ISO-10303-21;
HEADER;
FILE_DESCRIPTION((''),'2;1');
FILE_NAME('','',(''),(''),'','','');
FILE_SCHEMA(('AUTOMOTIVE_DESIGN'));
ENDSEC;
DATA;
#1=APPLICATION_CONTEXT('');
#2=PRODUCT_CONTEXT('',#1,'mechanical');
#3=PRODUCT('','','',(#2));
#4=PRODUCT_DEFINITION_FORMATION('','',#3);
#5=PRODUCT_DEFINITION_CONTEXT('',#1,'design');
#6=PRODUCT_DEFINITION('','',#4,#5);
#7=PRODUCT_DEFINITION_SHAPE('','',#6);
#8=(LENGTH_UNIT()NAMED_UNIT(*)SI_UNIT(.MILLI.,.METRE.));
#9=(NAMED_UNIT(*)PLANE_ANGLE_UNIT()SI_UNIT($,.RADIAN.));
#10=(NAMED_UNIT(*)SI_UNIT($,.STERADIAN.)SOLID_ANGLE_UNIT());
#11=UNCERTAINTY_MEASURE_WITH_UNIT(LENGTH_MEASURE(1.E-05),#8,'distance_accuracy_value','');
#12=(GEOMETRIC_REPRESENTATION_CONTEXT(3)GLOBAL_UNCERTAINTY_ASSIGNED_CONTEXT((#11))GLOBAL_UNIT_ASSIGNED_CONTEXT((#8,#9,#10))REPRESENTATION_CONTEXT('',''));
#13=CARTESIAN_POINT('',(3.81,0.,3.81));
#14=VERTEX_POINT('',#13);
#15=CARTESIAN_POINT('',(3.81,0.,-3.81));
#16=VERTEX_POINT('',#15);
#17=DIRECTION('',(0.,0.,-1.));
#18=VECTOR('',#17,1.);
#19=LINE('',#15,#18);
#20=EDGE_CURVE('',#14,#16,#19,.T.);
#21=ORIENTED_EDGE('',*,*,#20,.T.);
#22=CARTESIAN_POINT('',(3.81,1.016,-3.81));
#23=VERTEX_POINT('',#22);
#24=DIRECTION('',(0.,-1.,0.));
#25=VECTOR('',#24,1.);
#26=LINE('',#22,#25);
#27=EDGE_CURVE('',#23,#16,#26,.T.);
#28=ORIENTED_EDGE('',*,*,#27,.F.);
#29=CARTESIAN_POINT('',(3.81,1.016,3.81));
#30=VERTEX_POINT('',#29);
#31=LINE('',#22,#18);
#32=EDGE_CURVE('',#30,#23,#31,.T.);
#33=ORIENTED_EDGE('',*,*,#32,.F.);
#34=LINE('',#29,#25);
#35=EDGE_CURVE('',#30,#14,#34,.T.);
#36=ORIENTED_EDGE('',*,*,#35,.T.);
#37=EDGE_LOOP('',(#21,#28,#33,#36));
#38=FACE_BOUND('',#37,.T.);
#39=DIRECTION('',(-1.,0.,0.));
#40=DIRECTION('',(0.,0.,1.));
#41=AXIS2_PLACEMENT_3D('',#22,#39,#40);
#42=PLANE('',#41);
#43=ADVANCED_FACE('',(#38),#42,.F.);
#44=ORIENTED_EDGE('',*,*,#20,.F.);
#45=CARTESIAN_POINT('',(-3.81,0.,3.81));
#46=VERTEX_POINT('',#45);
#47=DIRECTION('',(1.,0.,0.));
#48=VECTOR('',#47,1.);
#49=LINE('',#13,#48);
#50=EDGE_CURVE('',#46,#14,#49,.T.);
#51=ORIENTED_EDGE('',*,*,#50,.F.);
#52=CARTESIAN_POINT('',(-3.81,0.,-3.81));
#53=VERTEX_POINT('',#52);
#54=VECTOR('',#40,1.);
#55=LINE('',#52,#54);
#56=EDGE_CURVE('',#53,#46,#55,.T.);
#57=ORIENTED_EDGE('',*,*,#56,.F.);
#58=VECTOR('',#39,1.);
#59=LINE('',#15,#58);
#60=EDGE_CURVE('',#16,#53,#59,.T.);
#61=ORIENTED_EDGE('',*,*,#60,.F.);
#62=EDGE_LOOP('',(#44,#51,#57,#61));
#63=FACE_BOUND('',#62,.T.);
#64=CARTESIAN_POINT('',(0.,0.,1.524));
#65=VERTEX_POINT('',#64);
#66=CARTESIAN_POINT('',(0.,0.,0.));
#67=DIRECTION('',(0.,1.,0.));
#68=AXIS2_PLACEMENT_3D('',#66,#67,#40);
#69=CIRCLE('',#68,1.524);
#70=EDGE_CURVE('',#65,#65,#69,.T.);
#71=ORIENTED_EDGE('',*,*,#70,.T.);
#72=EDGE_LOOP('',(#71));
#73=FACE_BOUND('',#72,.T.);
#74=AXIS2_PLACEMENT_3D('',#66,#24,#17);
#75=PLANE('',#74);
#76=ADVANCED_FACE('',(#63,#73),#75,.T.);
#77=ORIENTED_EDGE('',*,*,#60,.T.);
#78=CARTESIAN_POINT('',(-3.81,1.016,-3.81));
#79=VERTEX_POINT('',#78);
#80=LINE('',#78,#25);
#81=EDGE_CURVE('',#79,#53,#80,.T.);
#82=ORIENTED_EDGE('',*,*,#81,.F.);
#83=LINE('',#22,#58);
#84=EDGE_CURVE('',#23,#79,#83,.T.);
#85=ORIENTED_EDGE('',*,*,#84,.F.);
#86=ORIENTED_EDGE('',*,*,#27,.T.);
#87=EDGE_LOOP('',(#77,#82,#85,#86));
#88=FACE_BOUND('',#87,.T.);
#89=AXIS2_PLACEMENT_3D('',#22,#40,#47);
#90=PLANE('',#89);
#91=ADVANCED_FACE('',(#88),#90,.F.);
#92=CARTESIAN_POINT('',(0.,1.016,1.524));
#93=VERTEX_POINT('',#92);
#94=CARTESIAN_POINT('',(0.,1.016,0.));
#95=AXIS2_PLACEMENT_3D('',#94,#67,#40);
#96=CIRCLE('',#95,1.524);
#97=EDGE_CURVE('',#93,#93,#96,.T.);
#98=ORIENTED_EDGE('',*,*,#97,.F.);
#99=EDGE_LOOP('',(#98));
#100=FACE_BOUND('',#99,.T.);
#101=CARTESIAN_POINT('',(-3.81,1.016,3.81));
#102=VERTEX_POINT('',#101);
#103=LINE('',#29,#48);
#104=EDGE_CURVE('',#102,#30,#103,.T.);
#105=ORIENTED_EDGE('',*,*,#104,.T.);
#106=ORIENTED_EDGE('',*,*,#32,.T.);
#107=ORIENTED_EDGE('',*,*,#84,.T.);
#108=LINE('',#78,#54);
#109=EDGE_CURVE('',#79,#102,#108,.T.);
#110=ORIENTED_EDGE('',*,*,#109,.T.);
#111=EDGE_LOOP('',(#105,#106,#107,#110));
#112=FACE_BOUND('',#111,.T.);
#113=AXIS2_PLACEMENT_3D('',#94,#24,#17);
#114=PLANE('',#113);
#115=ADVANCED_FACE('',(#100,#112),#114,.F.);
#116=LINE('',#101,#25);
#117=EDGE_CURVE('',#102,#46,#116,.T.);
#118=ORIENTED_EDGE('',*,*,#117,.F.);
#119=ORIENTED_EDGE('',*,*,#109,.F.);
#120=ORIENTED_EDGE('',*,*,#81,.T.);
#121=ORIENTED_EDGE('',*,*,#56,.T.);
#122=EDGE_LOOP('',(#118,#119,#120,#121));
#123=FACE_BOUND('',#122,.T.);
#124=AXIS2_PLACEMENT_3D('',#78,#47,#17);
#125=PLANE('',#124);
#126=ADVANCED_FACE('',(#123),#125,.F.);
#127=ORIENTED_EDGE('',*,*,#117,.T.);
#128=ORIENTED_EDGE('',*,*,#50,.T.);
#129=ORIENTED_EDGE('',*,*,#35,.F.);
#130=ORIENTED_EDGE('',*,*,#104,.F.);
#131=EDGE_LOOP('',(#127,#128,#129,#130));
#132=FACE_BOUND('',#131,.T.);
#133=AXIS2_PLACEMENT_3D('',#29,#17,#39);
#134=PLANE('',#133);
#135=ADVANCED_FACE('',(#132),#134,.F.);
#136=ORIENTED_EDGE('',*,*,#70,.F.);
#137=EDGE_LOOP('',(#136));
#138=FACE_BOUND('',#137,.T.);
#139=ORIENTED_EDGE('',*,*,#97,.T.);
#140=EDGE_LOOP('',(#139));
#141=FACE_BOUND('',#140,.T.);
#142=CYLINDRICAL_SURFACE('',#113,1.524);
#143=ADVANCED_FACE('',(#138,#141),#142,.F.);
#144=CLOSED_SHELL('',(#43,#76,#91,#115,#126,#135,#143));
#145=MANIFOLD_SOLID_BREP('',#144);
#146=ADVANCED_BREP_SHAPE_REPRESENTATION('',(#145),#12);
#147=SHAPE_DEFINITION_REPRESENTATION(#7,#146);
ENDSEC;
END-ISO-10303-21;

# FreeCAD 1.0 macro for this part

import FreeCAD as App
import Part
import Sketcher
from FreeCAD import Vector
Q = App.Units.Quantity


def add_polygon(sketch, points):
    """Adds a closed chain of lines whose ends are joined by coincident constraints."""
    first, n = sketch.GeometryCount, len(points)
    for a, b in zip(points, points[1:] + points[:1]):
        sketch.addGeometry(Part.LineSegment(App.Vector(*a, 0), App.Vector(*b, 0)), False)
    for i in range(n):
        sketch.addConstraint(Sketcher.Constraint("Coincident", first + i, 2, first + (i + 1) % n, 1))

doc = App.newDocument("Part")
params = doc.addObject("Spreadsheet::Sheet", "Params")
for row, (alias, value) in enumerate([
    ("sketch1_diameter", "0.12 in"),
    ("sketch1_width", "0.3 in"),
    ("pad1_length", "0.04 in"),
], start=1):
    params.set(f"A{row}", alias)
    params.set(f"B{row}", "=" + value)
    params.setAlias(f"B{row}", alias)

body = doc.addObject("PartDesign::Body", "Body")

# Sketch on XZ plane
sketch1 = body.newObject("Sketcher::SketchObject", "Sketch")
sketch1.AttachmentSupport = (doc.getObject("XZ_Plane"), [""])
sketch1.MapMode = "FlatFace"
add_polygon(sketch1, [(-3.8, -3.8), (-3.8, 3.8), (3.8, 3.8), (3.8, -3.8)])  # lines 0-3
sketch1.addGeometry(Part.Circle(Vector(0, 0, 0), Vector(0, 0, 1), 1.5), False)  # 4
sketch1.addConstraint(Sketcher.Constraint("Vertical", 0))
sketch1.addConstraint(Sketcher.Constraint("Horizontal", 1))
sketch1.addConstraint(Sketcher.Constraint("Vertical", 2))
sketch1.addConstraint(Sketcher.Constraint("Horizontal", 3))
sketch1.addConstraint(Sketcher.Constraint("Coincident", 4, 3, -1, 1))
sketch1.addConstraint(Sketcher.Constraint("Symmetric", 0, 2, 2, 2, -1, 1))
sketch1.addConstraint(Sketcher.Constraint("Equal", 3, 0))
sketch1.addConstraint(Sketcher.Constraint("Diameter", 4, Q("0.12 in")))
sketch1.addConstraint(Sketcher.Constraint("DistanceX", 1, 1, 1, 2, Q("0.3 in")))
sketch1.setExpression("Constraints[11]", "Params.sketch1_diameter")
sketch1.setExpression("Constraints[12]", "Params.sketch1_width")
pad1 = body.newObject("PartDesign::Pad", "Pad")
pad1.Profile = sketch1
pad1.setExpression("Length", "Params.pad1_length")
pad1.Reversed = True

doc.recompute()
